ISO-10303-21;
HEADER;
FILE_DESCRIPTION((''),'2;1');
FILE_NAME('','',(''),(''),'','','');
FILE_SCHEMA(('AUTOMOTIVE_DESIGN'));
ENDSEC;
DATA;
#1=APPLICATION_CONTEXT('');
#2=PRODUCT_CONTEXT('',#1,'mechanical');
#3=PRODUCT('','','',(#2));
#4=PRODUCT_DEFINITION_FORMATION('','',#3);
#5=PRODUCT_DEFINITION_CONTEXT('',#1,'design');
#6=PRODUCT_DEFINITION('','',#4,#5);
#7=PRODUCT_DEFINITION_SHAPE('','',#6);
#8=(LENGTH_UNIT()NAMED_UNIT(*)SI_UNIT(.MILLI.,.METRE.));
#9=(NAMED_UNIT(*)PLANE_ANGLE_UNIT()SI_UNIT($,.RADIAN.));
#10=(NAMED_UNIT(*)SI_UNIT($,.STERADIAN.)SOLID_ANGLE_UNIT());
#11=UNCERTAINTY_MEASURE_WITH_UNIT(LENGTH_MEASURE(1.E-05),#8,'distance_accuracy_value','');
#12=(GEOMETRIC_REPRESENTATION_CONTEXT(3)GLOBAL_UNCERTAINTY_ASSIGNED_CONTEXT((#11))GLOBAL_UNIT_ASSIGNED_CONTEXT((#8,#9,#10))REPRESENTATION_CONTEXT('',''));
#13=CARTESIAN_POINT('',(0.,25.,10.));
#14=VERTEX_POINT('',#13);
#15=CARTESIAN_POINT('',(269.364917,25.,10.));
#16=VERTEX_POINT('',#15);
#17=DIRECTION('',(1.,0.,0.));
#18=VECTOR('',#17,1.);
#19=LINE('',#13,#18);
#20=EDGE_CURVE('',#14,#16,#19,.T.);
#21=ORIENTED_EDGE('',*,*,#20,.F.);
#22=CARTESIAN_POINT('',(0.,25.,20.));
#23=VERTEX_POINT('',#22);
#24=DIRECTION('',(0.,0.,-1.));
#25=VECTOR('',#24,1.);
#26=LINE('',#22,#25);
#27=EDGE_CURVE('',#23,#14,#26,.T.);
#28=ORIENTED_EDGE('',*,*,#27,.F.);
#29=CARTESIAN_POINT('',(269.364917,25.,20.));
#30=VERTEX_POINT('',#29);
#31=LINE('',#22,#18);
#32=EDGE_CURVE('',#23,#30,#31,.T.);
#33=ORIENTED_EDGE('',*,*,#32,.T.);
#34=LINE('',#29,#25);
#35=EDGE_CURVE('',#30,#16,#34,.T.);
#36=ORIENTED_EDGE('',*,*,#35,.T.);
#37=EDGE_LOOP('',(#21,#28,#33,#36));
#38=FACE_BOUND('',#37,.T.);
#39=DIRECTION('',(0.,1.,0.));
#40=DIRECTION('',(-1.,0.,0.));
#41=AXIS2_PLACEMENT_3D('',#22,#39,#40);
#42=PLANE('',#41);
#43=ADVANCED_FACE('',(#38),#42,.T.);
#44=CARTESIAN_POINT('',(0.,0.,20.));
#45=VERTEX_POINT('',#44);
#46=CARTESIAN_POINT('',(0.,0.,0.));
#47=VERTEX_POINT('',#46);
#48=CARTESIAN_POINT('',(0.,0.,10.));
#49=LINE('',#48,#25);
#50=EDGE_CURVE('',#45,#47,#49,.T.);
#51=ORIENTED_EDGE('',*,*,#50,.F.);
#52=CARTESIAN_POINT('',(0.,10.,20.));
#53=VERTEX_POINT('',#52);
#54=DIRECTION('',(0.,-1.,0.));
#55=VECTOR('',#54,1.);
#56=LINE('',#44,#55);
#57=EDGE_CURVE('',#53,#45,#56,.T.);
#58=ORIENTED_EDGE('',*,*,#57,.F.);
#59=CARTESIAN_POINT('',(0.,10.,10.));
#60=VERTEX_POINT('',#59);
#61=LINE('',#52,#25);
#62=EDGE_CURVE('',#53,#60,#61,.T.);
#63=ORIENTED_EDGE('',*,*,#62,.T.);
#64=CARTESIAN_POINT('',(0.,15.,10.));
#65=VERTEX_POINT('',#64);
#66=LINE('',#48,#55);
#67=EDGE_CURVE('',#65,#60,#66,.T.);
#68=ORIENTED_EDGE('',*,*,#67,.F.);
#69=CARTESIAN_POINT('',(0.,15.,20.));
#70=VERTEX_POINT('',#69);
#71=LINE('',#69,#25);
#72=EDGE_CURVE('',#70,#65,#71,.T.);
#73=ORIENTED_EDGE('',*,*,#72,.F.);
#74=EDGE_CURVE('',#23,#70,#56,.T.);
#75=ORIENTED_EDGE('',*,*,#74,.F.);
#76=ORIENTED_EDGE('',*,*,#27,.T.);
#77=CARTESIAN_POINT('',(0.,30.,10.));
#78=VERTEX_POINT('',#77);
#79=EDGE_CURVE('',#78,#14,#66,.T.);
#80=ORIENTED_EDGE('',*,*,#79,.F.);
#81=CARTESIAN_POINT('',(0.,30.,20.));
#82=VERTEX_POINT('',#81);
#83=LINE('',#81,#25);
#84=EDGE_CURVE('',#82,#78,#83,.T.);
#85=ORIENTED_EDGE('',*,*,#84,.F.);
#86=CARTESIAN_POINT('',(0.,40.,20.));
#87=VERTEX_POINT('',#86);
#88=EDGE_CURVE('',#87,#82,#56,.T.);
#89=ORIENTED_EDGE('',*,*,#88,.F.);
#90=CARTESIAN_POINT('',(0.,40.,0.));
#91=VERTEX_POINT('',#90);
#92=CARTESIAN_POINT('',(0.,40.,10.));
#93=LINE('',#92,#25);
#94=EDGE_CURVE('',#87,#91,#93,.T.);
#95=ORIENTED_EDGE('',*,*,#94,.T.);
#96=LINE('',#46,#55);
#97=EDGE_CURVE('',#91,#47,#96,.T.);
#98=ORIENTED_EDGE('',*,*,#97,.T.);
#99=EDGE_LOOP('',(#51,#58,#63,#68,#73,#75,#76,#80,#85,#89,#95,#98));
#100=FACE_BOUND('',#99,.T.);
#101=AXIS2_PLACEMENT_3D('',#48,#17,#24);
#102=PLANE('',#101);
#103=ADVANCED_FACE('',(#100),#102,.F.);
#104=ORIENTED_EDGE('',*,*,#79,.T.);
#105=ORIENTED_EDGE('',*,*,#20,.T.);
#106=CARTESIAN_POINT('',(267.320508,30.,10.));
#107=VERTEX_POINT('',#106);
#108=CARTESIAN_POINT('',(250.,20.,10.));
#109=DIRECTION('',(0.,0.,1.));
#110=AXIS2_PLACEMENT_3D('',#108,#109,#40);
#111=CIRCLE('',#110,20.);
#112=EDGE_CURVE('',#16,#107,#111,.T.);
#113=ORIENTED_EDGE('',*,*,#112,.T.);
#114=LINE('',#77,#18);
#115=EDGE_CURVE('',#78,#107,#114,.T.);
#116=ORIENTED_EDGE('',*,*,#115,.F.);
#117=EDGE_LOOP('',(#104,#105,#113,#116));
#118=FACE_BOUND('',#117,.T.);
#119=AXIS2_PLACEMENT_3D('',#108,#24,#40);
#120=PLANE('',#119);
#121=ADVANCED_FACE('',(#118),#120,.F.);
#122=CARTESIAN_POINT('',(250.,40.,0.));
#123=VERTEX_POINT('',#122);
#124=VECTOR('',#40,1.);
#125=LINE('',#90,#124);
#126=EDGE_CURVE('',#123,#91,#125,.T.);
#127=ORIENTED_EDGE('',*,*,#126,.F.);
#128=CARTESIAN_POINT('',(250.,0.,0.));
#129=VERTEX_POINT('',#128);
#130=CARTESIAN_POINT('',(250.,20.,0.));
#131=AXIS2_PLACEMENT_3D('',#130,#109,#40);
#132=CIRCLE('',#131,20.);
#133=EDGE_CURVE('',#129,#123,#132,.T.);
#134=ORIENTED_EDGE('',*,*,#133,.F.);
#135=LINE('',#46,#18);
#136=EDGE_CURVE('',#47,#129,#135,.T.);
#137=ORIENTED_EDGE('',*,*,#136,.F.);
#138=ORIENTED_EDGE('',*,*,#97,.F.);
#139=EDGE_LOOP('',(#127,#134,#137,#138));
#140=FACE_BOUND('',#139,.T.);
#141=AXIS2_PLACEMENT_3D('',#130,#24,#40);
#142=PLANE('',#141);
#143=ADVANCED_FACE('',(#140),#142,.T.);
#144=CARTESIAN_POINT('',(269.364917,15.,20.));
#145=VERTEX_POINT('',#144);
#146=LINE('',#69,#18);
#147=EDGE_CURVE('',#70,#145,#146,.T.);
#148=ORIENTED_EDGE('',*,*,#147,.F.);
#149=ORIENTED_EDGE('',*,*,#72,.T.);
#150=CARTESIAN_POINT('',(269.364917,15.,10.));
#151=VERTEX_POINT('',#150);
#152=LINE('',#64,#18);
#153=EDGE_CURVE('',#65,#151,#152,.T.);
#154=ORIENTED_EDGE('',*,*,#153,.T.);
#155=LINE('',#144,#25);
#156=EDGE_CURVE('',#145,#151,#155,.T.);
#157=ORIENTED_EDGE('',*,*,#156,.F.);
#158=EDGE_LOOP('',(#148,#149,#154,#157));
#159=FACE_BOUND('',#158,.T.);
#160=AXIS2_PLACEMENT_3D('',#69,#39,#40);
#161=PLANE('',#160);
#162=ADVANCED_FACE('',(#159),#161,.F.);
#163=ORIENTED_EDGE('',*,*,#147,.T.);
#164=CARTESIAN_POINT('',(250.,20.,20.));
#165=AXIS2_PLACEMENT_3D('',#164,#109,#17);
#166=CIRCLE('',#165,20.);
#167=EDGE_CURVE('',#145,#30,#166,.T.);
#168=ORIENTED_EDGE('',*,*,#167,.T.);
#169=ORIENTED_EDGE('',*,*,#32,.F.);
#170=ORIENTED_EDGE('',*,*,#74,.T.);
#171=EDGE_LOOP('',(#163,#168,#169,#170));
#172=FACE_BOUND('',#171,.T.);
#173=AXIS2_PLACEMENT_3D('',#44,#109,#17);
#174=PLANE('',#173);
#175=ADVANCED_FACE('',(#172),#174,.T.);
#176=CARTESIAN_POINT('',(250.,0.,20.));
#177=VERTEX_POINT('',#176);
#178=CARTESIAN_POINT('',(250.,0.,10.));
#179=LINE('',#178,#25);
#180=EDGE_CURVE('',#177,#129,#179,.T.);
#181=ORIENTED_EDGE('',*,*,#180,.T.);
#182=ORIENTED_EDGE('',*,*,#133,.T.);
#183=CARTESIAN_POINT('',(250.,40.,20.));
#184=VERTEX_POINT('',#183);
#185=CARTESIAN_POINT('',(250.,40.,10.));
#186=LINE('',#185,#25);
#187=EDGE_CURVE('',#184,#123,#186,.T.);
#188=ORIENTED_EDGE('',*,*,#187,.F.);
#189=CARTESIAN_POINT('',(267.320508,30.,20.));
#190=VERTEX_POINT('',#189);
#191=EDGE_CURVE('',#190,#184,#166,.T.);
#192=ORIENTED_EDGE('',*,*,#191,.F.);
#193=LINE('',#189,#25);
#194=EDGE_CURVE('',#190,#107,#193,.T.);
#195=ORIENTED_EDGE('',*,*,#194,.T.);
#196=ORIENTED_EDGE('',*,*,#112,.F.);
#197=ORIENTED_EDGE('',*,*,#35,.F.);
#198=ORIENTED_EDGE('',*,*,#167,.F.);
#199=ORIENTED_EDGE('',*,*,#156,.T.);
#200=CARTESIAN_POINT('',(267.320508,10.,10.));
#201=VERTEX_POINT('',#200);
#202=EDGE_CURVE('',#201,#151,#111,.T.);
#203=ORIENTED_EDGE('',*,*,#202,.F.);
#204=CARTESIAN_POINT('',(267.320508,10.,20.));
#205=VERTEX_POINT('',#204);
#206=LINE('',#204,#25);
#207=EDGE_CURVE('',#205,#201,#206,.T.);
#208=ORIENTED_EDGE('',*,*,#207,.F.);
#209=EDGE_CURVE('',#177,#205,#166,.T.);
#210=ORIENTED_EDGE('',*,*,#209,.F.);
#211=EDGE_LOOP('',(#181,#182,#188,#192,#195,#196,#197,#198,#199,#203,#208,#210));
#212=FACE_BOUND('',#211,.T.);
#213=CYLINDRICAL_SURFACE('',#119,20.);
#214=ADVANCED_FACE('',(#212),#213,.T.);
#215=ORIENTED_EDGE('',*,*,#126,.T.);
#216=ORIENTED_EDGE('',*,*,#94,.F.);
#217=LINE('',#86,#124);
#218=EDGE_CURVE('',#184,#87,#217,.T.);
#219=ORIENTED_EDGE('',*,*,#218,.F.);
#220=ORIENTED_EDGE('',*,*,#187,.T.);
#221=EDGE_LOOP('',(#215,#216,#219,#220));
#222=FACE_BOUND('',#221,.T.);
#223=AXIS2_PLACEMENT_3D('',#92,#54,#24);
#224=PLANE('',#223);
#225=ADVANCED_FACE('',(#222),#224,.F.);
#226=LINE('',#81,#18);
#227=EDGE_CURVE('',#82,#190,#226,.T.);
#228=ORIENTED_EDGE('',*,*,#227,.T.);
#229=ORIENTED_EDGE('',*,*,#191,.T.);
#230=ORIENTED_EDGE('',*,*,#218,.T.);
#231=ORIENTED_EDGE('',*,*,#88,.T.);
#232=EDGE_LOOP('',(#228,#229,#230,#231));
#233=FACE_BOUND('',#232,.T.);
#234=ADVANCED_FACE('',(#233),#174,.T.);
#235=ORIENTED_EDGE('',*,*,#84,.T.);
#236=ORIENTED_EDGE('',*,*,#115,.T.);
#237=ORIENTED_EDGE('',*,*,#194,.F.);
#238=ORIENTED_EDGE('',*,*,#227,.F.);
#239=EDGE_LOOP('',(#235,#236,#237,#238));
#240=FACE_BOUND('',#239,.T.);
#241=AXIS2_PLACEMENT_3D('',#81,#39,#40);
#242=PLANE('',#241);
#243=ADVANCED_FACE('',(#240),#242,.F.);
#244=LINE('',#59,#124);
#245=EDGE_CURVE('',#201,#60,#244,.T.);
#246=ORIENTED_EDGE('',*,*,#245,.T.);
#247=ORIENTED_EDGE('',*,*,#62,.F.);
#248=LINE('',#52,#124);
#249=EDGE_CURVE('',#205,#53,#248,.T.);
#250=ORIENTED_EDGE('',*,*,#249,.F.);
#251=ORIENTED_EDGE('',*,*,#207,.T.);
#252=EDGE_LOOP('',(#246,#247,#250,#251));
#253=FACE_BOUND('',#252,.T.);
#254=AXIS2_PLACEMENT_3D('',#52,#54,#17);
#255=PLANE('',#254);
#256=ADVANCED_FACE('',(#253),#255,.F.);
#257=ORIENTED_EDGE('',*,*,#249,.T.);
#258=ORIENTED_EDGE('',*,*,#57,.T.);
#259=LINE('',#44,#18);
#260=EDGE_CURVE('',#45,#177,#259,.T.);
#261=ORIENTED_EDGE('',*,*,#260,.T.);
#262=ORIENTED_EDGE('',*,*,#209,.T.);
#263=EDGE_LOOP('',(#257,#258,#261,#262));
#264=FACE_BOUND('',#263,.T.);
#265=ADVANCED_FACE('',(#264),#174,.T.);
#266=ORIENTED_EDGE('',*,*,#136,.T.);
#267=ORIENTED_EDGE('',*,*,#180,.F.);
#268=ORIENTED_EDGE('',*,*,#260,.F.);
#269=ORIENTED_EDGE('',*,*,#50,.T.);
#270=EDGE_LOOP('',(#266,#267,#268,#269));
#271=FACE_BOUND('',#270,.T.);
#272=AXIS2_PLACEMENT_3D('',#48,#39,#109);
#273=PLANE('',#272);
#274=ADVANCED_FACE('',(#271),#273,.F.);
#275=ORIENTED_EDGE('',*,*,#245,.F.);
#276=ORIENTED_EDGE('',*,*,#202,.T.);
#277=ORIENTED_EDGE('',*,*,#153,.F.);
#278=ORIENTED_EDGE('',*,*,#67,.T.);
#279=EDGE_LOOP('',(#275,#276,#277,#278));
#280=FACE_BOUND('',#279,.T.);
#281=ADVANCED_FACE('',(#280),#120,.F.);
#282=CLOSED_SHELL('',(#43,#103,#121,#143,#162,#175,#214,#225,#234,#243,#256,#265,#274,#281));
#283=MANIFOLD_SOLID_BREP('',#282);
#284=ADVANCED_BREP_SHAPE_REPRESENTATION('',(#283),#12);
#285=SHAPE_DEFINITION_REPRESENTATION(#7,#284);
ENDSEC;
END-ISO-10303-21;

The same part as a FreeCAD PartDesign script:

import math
import FreeCAD as App
import Part
import Sketcher
Q = App.Units.Quantity

doc = App.newDocument("Part")
body = doc.addObject("PartDesign::Body", "Body")

# Sketch on XY plane
sketch1 = body.newObject("Sketcher::SketchObject", "Sketch")
sketch1.AttachmentSupport = (doc.getObject("XY_Plane"), [""])
sketch1.MapMode = "FlatFace"
sketch1.addGeometry([
    Part.LineSegment(App.Vector(0, 0, 0), App.Vector(250, 0, 0)),
    Part.ArcOfCircle(Part.Circle(App.Vector(250, 20, 0), App.Vector(0, 0, 1), 20), math.radians(-90), math.radians(90)),
    Part.LineSegment(App.Vector(250, 40, 0), App.Vector(0, 40, 0)),
    Part.LineSegment(App.Vector(0, 40, 0), App.Vector(0, 0, 0)),
], False)
sketch1.addConstraint([
    Sketcher.Constraint("Tangent", 0, 2, 1, 1),
    Sketcher.Constraint("Tangent", 1, 2, 2, 1),
    Sketcher.Constraint("Coincident", 2, 2, 3, 1),
    Sketcher.Constraint("Coincident", 3, 2, 0, 1),
    Sketcher.Constraint("Horizontal", 0),
    Sketcher.Constraint("Horizontal", 2),
    Sketcher.Constraint("Vertical", 3),
    Sketcher.Constraint("Coincident", 3, 2, -1, 1),
    Sketcher.Constraint("Radius", 1, Q("20 mm")),
    Sketcher.Constraint("DistanceX", 0, 1, 0, 2, Q("250 mm")),
])
pad1 = body.newObject("PartDesign::Pad", "Pad")
pad1.Profile = sketch1
pad1.Length = 10

# Sketch on XY plane
sketch2 = body.newObject("Sketcher::SketchObject", "Sketch001")
sketch2.AttachmentSupport = (doc.getObject("XY_Plane"), [""])
sketch2.MapMode = "FlatFace"
sketch2.AttachmentOffset = App.Placement(App.Vector(0, 0, 10), App.Rotation())
sketch2.addGeometry([
    Part.ArcOfCircle(Part.Circle(App.Vector(250, 20, 0), App.Vector(0, 0, 1), 20), math.radians(-90), math.radians(-30)),  # 0
    Part.LineSegment(App.Vector(267.320508, 10, 0), App.Vector(0, 10, 0)),  # 1
    Part.LineSegment(App.Vector(0, 10, 0), App.Vector(0, 0, 0)),  # 2
    Part.LineSegment(App.Vector(0, 0, 0), App.Vector(250, 0, 0)),  # 3
    Part.ArcOfCircle(Part.Circle(App.Vector(250, 20, 0), App.Vector(0, 0, 1), 20), math.radians(-14.477512), math.radians(14.477512)),  # 4
    Part.LineSegment(App.Vector(269.364917, 25, 0), App.Vector(0, 25, 0)),  # 5
    Part.LineSegment(App.Vector(0, 25, 0), App.Vector(0, 15, 0)),  # 6
    Part.LineSegment(App.Vector(0, 15, 0), App.Vector(269.364917, 15, 0)),  # 7
    Part.ArcOfCircle(Part.Circle(App.Vector(250, 20, 0), App.Vector(0, 0, 1), 20), math.radians(30), math.radians(90)),  # 8
    Part.LineSegment(App.Vector(250, 40, 0), App.Vector(0, 40, 0)),  # 9
    Part.LineSegment(App.Vector(0, 40, 0), App.Vector(0, 30, 0)),  # 10
    Part.LineSegment(App.Vector(0, 30, 0), App.Vector(267.320508, 30, 0)),  # 11
], False)
sketch2.addConstraint([
    Sketcher.Constraint("Coincident", 0, 2, 1, 1),
    Sketcher.Constraint("Coincident", 1, 2, 2, 1),
    Sketcher.Constraint("Coincident", 2, 2, 3, 1),
    Sketcher.Constraint("Tangent", 3, 2, 0, 1),
    Sketcher.Constraint("Coincident", 4, 2, 5, 1),
    Sketcher.Constraint("Coincident", 5, 2, 6, 1),
    Sketcher.Constraint("Coincident", 6, 2, 7, 1),
    Sketcher.Constraint("Coincident", 7, 2, 4, 1),
    Sketcher.Constraint("Tangent", 8, 2, 9, 1),
    Sketcher.Constraint("Coincident", 9, 2, 10, 1),
    Sketcher.Constraint("Coincident", 10, 2, 11, 1),
    Sketcher.Constraint("Coincident", 11, 2, 8, 1),
    Sketcher.Constraint("Horizontal", 1),
    Sketcher.Constraint("Vertical", 2),
    Sketcher.Constraint("Horizontal", 3),
    Sketcher.Constraint("Horizontal", 5),
    Sketcher.Constraint("Vertical", 6),
    Sketcher.Constraint("Horizontal", 7),
    Sketcher.Constraint("Horizontal", 9),
    Sketcher.Constraint("Vertical", 10),
    Sketcher.Constraint("Horizontal", 11),
    Sketcher.Constraint("Coincident", 2, 2, -1, 1),
    Sketcher.Constraint("Coincident", 4, 3, 0, 3),
    Sketcher.Constraint("Coincident", 8, 3, 0, 3),
    Sketcher.Constraint("Equal", 0, 4),
    Sketcher.Constraint("Equal", 4, 8),
    Sketcher.Constraint("PointOnObject", 5, 2, -2),
    Sketcher.Constraint("PointOnObject", 9, 2, -2),
    Sketcher.Constraint("Vertical", 4, 2, 7, 2),
    Sketcher.Constraint("Vertical", 0, 2, 11, 2),
    Sketcher.Constraint("Equal", 2, 6),
    Sketcher.Constraint("Radius", 0, Q("20 mm")),
    Sketcher.Constraint("DistanceX", 3, 1, 3, 2, Q("250 mm")),
    Sketcher.Constraint("DistanceY", 2, 2, 2, 1, Q("10 mm")),
])
pad2 = body.newObject("PartDesign::Pad", "Pad001")
pad2.Profile = sketch2
pad2.Length = 10

doc.recompute()
